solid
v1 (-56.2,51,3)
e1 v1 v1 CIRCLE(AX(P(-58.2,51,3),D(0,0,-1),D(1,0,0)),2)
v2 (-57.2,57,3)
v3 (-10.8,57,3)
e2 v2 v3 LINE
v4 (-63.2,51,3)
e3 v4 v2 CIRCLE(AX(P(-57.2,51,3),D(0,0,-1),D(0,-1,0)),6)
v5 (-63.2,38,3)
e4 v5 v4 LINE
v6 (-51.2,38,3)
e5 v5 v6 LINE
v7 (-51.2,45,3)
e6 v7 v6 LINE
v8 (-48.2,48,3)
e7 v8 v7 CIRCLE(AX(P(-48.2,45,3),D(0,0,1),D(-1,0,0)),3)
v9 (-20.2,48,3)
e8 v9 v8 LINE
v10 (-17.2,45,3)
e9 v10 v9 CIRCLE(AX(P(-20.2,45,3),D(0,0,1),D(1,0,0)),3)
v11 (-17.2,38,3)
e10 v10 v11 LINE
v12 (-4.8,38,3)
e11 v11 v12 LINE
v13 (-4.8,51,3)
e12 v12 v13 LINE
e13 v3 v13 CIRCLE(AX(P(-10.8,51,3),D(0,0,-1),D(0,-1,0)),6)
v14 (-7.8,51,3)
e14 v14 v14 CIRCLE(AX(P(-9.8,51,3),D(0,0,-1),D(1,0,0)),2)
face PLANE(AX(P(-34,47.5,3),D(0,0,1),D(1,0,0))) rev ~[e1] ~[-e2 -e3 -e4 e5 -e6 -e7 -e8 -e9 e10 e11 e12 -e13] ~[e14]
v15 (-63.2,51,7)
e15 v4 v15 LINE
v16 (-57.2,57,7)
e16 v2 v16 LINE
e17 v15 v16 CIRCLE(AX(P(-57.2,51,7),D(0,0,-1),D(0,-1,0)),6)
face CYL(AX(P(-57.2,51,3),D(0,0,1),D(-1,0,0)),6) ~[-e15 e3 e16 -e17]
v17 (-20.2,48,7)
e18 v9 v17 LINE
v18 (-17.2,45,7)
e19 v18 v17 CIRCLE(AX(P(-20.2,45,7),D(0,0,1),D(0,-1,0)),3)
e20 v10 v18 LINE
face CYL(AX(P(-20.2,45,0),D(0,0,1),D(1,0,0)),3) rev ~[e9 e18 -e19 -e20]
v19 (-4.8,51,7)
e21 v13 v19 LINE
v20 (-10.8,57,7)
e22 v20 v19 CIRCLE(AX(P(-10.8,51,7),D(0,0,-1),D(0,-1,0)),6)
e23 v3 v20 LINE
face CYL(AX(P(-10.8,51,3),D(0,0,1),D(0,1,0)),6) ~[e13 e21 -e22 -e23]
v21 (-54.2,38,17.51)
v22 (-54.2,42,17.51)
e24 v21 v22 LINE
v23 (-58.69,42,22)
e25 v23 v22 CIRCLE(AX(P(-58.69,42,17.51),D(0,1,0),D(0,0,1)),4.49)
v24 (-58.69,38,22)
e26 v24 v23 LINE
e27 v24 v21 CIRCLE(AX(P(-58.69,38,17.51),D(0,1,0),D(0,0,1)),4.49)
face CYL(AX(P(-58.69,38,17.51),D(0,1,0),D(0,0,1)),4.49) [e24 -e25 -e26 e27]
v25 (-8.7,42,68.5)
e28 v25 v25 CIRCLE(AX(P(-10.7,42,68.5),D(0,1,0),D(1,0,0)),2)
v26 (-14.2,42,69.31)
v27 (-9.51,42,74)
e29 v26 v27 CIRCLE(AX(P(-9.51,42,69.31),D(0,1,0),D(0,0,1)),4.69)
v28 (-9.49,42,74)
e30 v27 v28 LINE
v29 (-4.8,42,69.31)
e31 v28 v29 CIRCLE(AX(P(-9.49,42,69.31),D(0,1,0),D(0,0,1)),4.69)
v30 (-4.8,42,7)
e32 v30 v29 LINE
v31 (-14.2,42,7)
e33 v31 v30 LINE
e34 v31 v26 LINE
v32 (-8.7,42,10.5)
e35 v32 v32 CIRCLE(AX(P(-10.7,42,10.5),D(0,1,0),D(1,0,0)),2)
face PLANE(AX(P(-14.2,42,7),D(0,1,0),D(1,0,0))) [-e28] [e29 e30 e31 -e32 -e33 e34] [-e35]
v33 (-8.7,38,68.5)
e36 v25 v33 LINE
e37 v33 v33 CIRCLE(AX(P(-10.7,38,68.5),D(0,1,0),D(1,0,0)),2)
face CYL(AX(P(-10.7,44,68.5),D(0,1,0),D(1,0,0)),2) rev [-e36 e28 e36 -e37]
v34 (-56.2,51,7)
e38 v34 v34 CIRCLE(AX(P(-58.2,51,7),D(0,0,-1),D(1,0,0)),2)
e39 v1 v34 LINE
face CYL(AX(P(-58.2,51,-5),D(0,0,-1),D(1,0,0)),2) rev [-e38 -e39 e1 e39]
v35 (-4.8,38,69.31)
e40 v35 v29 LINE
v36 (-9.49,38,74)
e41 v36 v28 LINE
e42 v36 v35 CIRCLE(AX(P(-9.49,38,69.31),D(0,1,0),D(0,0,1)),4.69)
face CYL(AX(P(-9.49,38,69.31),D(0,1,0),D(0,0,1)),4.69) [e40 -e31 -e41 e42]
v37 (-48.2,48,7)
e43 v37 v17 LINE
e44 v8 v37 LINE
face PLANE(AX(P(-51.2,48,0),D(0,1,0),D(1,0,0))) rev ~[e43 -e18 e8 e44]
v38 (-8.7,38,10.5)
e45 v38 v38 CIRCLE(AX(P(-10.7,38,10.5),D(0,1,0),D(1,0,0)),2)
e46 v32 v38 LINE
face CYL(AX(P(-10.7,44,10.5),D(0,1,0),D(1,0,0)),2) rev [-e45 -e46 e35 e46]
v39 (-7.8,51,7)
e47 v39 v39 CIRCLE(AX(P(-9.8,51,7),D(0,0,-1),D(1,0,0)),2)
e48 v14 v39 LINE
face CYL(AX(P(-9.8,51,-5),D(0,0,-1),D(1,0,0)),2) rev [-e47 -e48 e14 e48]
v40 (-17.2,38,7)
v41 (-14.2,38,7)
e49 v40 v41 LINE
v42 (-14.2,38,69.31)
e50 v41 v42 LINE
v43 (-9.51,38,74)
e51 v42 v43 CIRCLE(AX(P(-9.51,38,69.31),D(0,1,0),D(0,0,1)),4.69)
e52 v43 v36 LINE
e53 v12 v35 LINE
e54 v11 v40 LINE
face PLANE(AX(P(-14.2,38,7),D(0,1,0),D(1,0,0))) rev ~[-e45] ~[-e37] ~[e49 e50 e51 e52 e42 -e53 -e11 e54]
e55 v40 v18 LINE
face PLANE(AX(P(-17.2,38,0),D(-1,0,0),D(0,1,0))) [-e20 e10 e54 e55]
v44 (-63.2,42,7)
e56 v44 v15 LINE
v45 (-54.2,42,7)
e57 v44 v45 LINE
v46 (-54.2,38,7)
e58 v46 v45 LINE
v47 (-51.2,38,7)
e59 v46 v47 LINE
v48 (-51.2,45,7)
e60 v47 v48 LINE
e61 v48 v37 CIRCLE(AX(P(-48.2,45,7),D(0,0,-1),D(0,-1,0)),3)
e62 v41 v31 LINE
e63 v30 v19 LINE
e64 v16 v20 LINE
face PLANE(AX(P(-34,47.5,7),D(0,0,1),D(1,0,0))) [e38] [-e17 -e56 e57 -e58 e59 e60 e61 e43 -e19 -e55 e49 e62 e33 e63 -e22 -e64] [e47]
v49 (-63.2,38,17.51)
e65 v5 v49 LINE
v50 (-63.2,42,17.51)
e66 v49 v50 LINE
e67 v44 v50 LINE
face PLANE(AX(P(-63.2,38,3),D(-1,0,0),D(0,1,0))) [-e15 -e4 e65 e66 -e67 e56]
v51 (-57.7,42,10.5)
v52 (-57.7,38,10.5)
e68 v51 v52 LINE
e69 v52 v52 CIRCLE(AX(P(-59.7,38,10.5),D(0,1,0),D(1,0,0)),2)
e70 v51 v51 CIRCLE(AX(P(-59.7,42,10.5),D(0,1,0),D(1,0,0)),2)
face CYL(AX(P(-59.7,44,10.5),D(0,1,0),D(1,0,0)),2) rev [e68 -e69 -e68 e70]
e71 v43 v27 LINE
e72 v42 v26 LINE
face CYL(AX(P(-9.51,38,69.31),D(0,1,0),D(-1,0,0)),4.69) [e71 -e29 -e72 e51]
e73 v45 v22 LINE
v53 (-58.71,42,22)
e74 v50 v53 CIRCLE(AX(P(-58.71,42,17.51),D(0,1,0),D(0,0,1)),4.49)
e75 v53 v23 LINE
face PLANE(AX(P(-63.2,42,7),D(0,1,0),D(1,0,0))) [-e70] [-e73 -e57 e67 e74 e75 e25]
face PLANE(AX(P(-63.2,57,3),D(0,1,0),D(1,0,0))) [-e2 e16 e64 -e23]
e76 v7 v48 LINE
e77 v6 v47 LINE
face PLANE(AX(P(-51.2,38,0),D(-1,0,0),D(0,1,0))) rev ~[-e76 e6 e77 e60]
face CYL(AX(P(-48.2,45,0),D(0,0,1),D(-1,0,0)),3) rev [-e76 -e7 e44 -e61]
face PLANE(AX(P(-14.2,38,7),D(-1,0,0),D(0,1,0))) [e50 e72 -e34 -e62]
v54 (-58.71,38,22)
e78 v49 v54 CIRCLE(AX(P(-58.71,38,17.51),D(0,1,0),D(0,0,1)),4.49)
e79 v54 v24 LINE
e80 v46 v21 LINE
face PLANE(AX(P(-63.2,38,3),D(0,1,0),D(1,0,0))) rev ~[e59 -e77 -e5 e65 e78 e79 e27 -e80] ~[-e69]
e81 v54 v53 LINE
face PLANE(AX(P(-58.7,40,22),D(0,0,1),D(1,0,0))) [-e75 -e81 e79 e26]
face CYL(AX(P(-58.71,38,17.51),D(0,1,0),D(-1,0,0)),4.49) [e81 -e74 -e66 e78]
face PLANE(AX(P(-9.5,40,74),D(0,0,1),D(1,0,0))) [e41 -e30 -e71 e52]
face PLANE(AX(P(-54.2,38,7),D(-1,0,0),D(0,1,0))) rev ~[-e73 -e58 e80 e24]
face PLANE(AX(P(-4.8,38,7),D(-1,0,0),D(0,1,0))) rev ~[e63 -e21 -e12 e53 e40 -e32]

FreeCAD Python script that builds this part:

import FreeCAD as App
import Part
import Sketcher

V = App.Vector
Q = App.Units.Quantity


def edges_at(feature, points):
    """Names of the edges that pass closest to the given points."""
    edges = feature.Shape.Edges
    near = lambda p: min(range(len(edges)), key=lambda i: edges[i].distToShape(Part.Vertex(*p))[0])
    return sorted({f"Edge{near(p) + 1}" for p in points})

doc = App.newDocument("Part")
params = doc.addObject("Spreadsheet::Sheet", "Params")
for row, (alias, value) in enumerate([
    ("sketch1_diameter", "4 mm"),
    ("pad1_length", "16 mm"),
    ("sketch2_diameter", "4 mm"),
    ("pad2_length", "16 mm"),
    ("sketch3_diameter", "4 mm"),
    ("pad3_length", "16 mm"),
    ("sketch4_width", "34 mm"),
    ("sketch4_height", "10 mm"),
    ("pad4_length", "7 mm"),
    ("fillet_radius", "3 mm"),
    ("sketch5_height", "19 mm"),
    ("sketch5_width", "58.4 mm"),
    ("pad5_length", "4 mm"),
    ("fillet2_radius", "6 mm"),
    ("sketch6_diameter", "4 mm"),
    ("pad6_length", "10 mm"),
    ("sketch7_diameter", "4 mm"),
    ("pad7_length", "10 mm"),
    ("sketch8_height", "4 mm"),
    ("sketch8_width", "9.4 mm"),
    ("pad8_length", "67 mm"),
    ("fillet3_radius", "4.69 mm"),
    ("sketch9_diameter", "4 mm"),
    ("pad9_length", "10 mm"),
    ("sketch10_width", "9 mm"),
    ("sketch10_height", "4 mm"),
    ("pad10_length", "15 mm"),
    ("fillet4_radius", "4.49 mm"),
], start=1):
    params.set(f"A{row}", alias)
    params.set(f"B{row}", "=" + value)
    params.setAlias(f"B{row}", alias)

body = doc.addObject("PartDesign::Body", "Body")

# Sketch on XY plane
sketch1 = body.newObject("Sketcher::SketchObject", "Sketch")
sketch1.AttachmentSupport = (doc.getObject("XY_Plane"), [""])
sketch1.MapMode = "FlatFace"
sketch1.AttachmentOffset = App.Placement(V(0, 0, -5), App.Rotation())
sketch1.addGeometry(Part.Circle(V(-9.8, 51, 0), V(0, 0, 1), 2), False)
sketch1.addConstraint([
    Sketcher.Constraint("Diameter", 0, Q("4 mm")),
    Sketcher.Constraint("DistanceY", -1, 1, 0, 3, Q("51 mm")),
    Sketcher.Constraint("DistanceX", 0, 3, -1, 1, Q("9.8 mm")),
])
sketch1.setExpression("Constraints[0]", "Params.sketch1_diameter")
pad1 = body.newObject("PartDesign::Pad", "Pad")
pad1.Profile = sketch1
pad1.setExpression("Length", "Params.pad1_length")
body2 = doc.addObject("PartDesign::Body", "Body001")

# Sketch on XY plane
sketch2 = body2.newObject("Sketcher::SketchObject", "Sketch001")
sketch2.AttachmentSupport = (doc.getObject("XY_Plane001"), [""])
sketch2.MapMode = "FlatFace"
sketch2.AttachmentOffset = App.Placement(V(0, 0, -5), App.Rotation())
sketch2.addGeometry(Part.Circle(V(-58.2, 51, 0), V(0, 0, 1), 2), False)
sketch2.addConstraint([
    Sketcher.Constraint("Diameter", 0, Q("4 mm")),
    Sketcher.Constraint("DistanceY", -1, 1, 0, 3, Q("51 mm")),
    Sketcher.Constraint("DistanceX", 0, 3, -1, 1, Q("58.2 mm")),
])
sketch2.setExpression("Constraints[0]", "Params.sketch2_diameter")
pad2 = body2.newObject("PartDesign::Pad", "Pad001")
pad2.Profile = sketch2
pad2.setExpression("Length", "Params.pad2_length")
body3 = doc.addObject("PartDesign::Body", "Body002")
body3.AllowCompound = True

# Sketch on XY plane
sketch3 = body3.newObject("Sketcher::SketchObject", "Sketch002")
sketch3.AttachmentSupport = (doc.getObject("XY_Plane002"), [""])
sketch3.MapMode = "FlatFace"
sketch3.AttachmentOffset = App.Placement(V(0, 0, -5), App.Rotation())
sketch3.addGeometry(Part.Circle(V(-9.8, 51, 0), V(0, 0, 1), 2), False)
sketch3.addConstraint([
    Sketcher.Constraint("Diameter", 0, Q("4 mm")),
    Sketcher.Constraint("DistanceY", -1, 1, 0, 3, Q("51 mm")),
    Sketcher.Constraint("DistanceX", 0, 3, -1, 1, Q("9.8 mm")),
])
sketch3.setExpression("Constraints[0]", "Params.sketch3_diameter")
pad3 = body3.newObject("PartDesign::Pad", "Pad002")
pad3.Profile = sketch3
pad3.setExpression("Length", "Params.pad3_length")
doc.recompute()

boolean = body3.newObject("PartDesign::Boolean", "Boolean")
boolean.Type = "Fuse"
boolean.addObjects([body])
doc.recompute()

boolean2 = body3.newObject("PartDesign::Boolean", "Boolean001")
boolean2.Type = "Fuse"
boolean2.addObjects([body2])
body4 = doc.addObject("PartDesign::Body", "Body003")

# Sketch on XY plane
sketch4 = body4.newObject("Sketcher::SketchObject", "Sketch003")
sketch4.AttachmentSupport = (doc.getObject("XY_Plane003"), [""])
sketch4.MapMode = "FlatFace"
sketch4.addGeometry([
    Part.LineSegment(V(-51.2, 48, 0), V(-51.2, 38, 0)),
    Part.LineSegment(V(-51.2, 38, 0), V(-17.2, 38, 0)),
    Part.LineSegment(V(-17.2, 38, 0), V(-17.2, 48, 0)),
    Part.LineSegment(V(-17.2, 48, 0), V(-51.2, 48, 0)),
], False)
sketch4.addConstraint([
    Sketcher.Constraint("Coincident", 0, 2, 1, 1),
    Sketcher.Constraint("Coincident", 1, 2, 2, 1),
    Sketcher.Constraint("Coincident", 2, 2, 3, 1),
    Sketcher.Constraint("Coincident", 3, 2, 0, 1),
    Sketcher.Constraint("Vertical", 0),
    Sketcher.Constraint("Horizontal", 1),
    Sketcher.Constraint("Vertical", 2),
    Sketcher.Constraint("Horizontal", 3),
    Sketcher.Constraint("DistanceX", 1, 1, 1, 2, Q("34 mm")),
    Sketcher.Constraint("DistanceY", 0, 2, 0, 1, Q("10 mm")),
    Sketcher.Constraint("DistanceY", -1, 1, 0, 2, Q("38 mm")),
    Sketcher.Constraint("DistanceX", 0, 2, -1, 1, Q("51.2 mm")),
])
sketch4.setExpression("Constraints[8]", "Params.sketch4_width")
sketch4.setExpression("Constraints[9]", "Params.sketch4_height")
pad4 = body4.newObject("PartDesign::Pad", "Pad003")
pad4.Profile = sketch4
pad4.setExpression("Length", "Params.pad4_length")
doc.recompute()

fillet = body4.newObject("PartDesign::Fillet", "Fillet")
fillet.Base = (pad4, edges_at(pad4, [(-51.2, 48, 3.5), (-17.2, 48, 3.5)]))
fillet.setExpression("Radius", "Params.fillet_radius")
body5 = doc.addObject("PartDesign::Body", "Body004")

# Sketch on XY plane
sketch5 = body5.newObject("Sketcher::SketchObject", "Sketch004")
sketch5.AttachmentSupport = (doc.getObject("XY_Plane004"), [""])
sketch5.MapMode = "FlatFace"
sketch5.AttachmentOffset = App.Placement(V(0, 0, 3), App.Rotation())
sketch5.addGeometry([
    Part.LineSegment(V(-63.2, 57, 0), V(-63.2, 38, 0)),
    Part.LineSegment(V(-63.2, 38, 0), V(-4.8, 38, 0)),
    Part.LineSegment(V(-4.8, 38, 0), V(-4.8, 57, 0)),
    Part.LineSegment(V(-4.8, 57, 0), V(-63.2, 57, 0)),
], False)
sketch5.addConstraint([
    Sketcher.Constraint("Coincident", 0, 2, 1, 1),
    Sketcher.Constraint("Coincident", 1, 2, 2, 1),
    Sketcher.Constraint("Coincident", 2, 2, 3, 1),
    Sketcher.Constraint("Coincident", 3, 2, 0, 1),
    Sketcher.Constraint("Vertical", 0),
    Sketcher.Constraint("Horizontal", 1),
    Sketcher.Constraint("Vertical", 2),
    Sketcher.Constraint("Horizontal", 3),
    Sketcher.Constraint("DistanceY", 0, 2, 0, 1, Q("19 mm")),
    Sketcher.Constraint("DistanceX", 1, 1, 1, 2, Q("58.4 mm")),
    Sketcher.Constraint("DistanceY", -1, 1, 0, 2, Q("38 mm")),
    Sketcher.Constraint("DistanceX", 0, 2, -1, 1, Q("63.2 mm")),
])
sketch5.setExpression("Constraints[8]", "Params.sketch5_height")
sketch5.setExpression("Constraints[9]", "Params.sketch5_width")
pad5 = body5.newObject("PartDesign::Pad", "Pad004")
pad5.Profile = sketch5
pad5.setExpression("Length", "Params.pad5_length")
doc.recompute()

boolean3 = body5.newObject("PartDesign::Boolean", "Boolean002")
boolean3.Type = "Cut"
boolean3.addObjects([body4])
doc.recompute()

boolean4 = body5.newObject("PartDesign::Boolean", "Boolean003")
boolean4.Type = "Cut"
boolean4.addObjects([body3])
doc.recompute()

fillet2 = body5.newObject("PartDesign::Fillet", "Fillet001")
fillet2.Base = (boolean4, edges_at(boolean4, [(-63.2, 57, 5), (-4.8, 57, 5)]))
fillet2.setExpression("Radius", "Params.fillet2_radius")
body6 = doc.addObject("PartDesign::Body", "Body005")

# Sketch on XZ plane
sketch6 = body6.newObject("Sketcher::SketchObject", "Sketch005")
sketch6.AttachmentSupport = (doc.getObject("XZ_Plane005"), [""])
sketch6.MapMode = "FlatFace"
sketch6.AttachmentOffset = App.Placement(V(0, 0, -44), App.Rotation())
sketch6.addGeometry(Part.Circle(V(-10.7, 10.5, 0), V(0, 0, 1), 2), False)
sketch6.addConstraint([
    Sketcher.Constraint("Diameter", 0, Q("4 mm")),
    Sketcher.Constraint("DistanceX", 0, 3, -1, 1, Q("10.7 mm")),
    Sketcher.Constraint("DistanceY", -1, 1, 0, 3, Q("10.5 mm")),
])
sketch6.setExpression("Constraints[0]", "Params.sketch6_diameter")
pad6 = body6.newObject("PartDesign::Pad", "Pad005")
pad6.Profile = sketch6
pad6.setExpression("Length", "Params.pad6_length")
body7 = doc.addObject("PartDesign::Body", "Body006")
body7.AllowCompound = True

# Sketch on XZ plane
sketch7 = body7.newObject("Sketcher::SketchObject", "Sketch006")
sketch7.AttachmentSupport = (doc.getObject("XZ_Plane006"), [""])
sketch7.MapMode = "FlatFace"
sketch7.AttachmentOffset = App.Placement(V(0, 0, -44), App.Rotation())
sketch7.addGeometry(Part.Circle(V(-10.7, 68.5, 0), V(0, 0, 1), 2), False)
sketch7.addConstraint([
    Sketcher.Constraint("Diameter", 0, Q("4 mm")),
    Sketcher.Constraint("DistanceX", 0, 3, -1, 1, Q("10.7 mm")),
    Sketcher.Constraint("DistanceY", -1, 1, 0, 3, Q("68.5 mm")),
])
sketch7.setExpression("Constraints[0]", "Params.sketch7_diameter")
pad7 = body7.newObject("PartDesign::Pad", "Pad006")
pad7.Profile = sketch7
pad7.setExpression("Length", "Params.pad7_length")
doc.recompute()

boolean5 = body7.newObject("PartDesign::Boolean", "Boolean004")
boolean5.Type = "Fuse"
boolean5.addObjects([body6])
body8 = doc.addObject("PartDesign::Body", "Body007")

# Sketch on XY plane
sketch8 = body8.newObject("Sketcher::SketchObject", "Sketch007")
sketch8.AttachmentSupport = (doc.getObject("XY_Plane007"), [""])
sketch8.MapMode = "FlatFace"
sketch8.AttachmentOffset = App.Placement(V(0, 0, 7), App.Rotation())
sketch8.addGeometry([
    Part.LineSegment(V(-14.2, 42, 0), V(-14.2, 38, 0)),
    Part.LineSegment(V(-14.2, 38, 0), V(-4.8, 38, 0)),
    Part.LineSegment(V(-4.8, 38, 0), V(-4.8, 42, 0)),
    Part.LineSegment(V(-4.8, 42, 0), V(-14.2, 42, 0)),
], False)
sketch8.addConstraint([
    Sketcher.Constraint("Coincident", 0, 2, 1, 1),
    Sketcher.Constraint("Coincident", 1, 2, 2, 1),
    Sketcher.Constraint("Coincident", 2, 2, 3, 1),
    Sketcher.Constraint("Coincident", 3, 2, 0, 1),
    Sketcher.Constraint("Vertical", 0),
    Sketcher.Constraint("Horizontal", 1),
    Sketcher.Constraint("Vertical", 2),
    Sketcher.Constraint("Horizontal", 3),
    Sketcher.Constraint("DistanceY", 0, 2, 0, 1, Q("4 mm")),
    Sketcher.Constraint("DistanceX", 1, 1, 1, 2, Q("9.4 mm")),
    Sketcher.Constraint("DistanceY", -1, 1, 0, 2, Q("38 mm")),
    Sketcher.Constraint("DistanceX", 0, 2, -1, 1, Q("14.2 mm")),
])
sketch8.setExpression("Constraints[8]", "Params.sketch8_height")
sketch8.setExpression("Constraints[9]", "Params.sketch8_width")
pad8 = body8.newObject("PartDesign::Pad", "Pad007")
pad8.Profile = sketch8
pad8.setExpression("Length", "Params.pad8_length")
doc.recompute()

boolean6 = body8.newObject("PartDesign::Boolean", "Boolean005")
boolean6.Type = "Cut"
boolean6.addObjects([body7])
doc.recompute()

fillet3 = body8.newObject("PartDesign::Fillet", "Fillet002")
fillet3.Base = (boolean6, edges_at(boolean6, [(-14.2, 40, 74), (-4.8, 40, 74)]))
fillet3.setExpression("Radius", "Params.fillet3_radius")
body9 = doc.addObject("PartDesign::Body", "Body008")

# Sketch on XZ plane
sketch9 = body9.newObject("Sketcher::SketchObject", "Sketch008")
sketch9.AttachmentSupport = (doc.getObject("XZ_Plane008"), [""])
sketch9.MapMode = "FlatFace"
sketch9.AttachmentOffset = App.Placement(V(0, 0, -44), App.Rotation())
sketch9.addGeometry(Part.Circle(V(-59.7, 10.5, 0), V(0, 0, 1), 2), False)
sketch9.addConstraint([
    Sketcher.Constraint("Diameter", 0, Q("4 mm")),
    Sketcher.Constraint("DistanceX", 0, 3, -1, 1, Q("59.7 mm")),
    Sketcher.Constraint("DistanceY", -1, 1, 0, 3, Q("10.5 mm")),
])
sketch9.setExpression("Constraints[0]", "Params.sketch9_diameter")
pad9 = body9.newObject("PartDesign::Pad", "Pad008")
pad9.Profile = sketch9
pad9.setExpression("Length", "Params.pad9_length")
body10 = doc.addObject("PartDesign::Body", "Body009")

# Sketch on XY plane
sketch10 = body10.newObject("Sketcher::SketchObject", "Sketch009")
sketch10.AttachmentSupport = (doc.getObject("XY_Plane009"), [""])
sketch10.MapMode = "FlatFace"
sketch10.AttachmentOffset = App.Placement(V(0, 0, 7), App.Rotation())
sketch10.addGeometry([
    Part.LineSegment(V(-63.2, 42, 0), V(-63.2, 38, 0)),
    Part.LineSegment(V(-63.2, 38, 0), V(-54.2, 38, 0)),
    Part.LineSegment(V(-54.2, 38, 0), V(-54.2, 42, 0)),
    Part.LineSegment(V(-54.2, 42, 0), V(-63.2, 42, 0)),
], False)
sketch10.addConstraint([
    Sketcher.Constraint("Coincident", 0, 2, 1, 1),
    Sketcher.Constraint("Coincident", 1, 2, 2, 1),
    Sketcher.Constraint("Coincident", 2, 2, 3, 1),
    Sketcher.Constraint("Coincident", 3, 2, 0, 1),
    Sketcher.Constraint("Vertical", 0),
    Sketcher.Constraint("Horizontal", 1),
    Sketcher.Constraint("Vertical", 2),
    Sketcher.Constraint("Horizontal", 3),
    Sketcher.Constraint("DistanceX", 1, 1, 1, 2, Q("9 mm")),
    Sketcher.Constraint("DistanceY", 0, 2, 0, 1, Q("4 mm")),
    Sketcher.Constraint("DistanceY", -1, 1, 0, 2, Q("38 mm")),
    Sketcher.Constraint("DistanceX", 0, 2, -1, 1, Q("63.2 mm")),
])
sketch10.setExpression("Constraints[8]", "Params.sketch10_width")
sketch10.setExpression("Constraints[9]", "Params.sketch10_height")
pad10 = body10.newObject("PartDesign::Pad", "Pad009")
pad10.Profile = sketch10
pad10.setExpression("Length", "Params.pad10_length")
doc.recompute()

boolean7 = body10.newObject("PartDesign::Boolean", "Boolean006")
boolean7.Type = "Cut"
boolean7.addObjects([body9])
doc.recompute()

fillet4 = body10.newObject("PartDesign::Fillet", "Fillet003")
fillet4.Base = (boolean7, edges_at(boolean7, [(-63.2, 40, 22), (-54.2, 40, 22)]))
fillet4.setExpression("Radius", "Params.fillet4_radius")
doc.recompute()

boolean8 = body10.newObject("PartDesign::Boolean", "Boolean007")
boolean8.Type = "Fuse"
boolean8.addObjects([body5])
doc.recompute()

boolean9 = body10.newObject("PartDesign::Boolean", "Boolean008")
boolean9.Type = "Fuse"
boolean9.addObjects([body8])

doc.recompute()
